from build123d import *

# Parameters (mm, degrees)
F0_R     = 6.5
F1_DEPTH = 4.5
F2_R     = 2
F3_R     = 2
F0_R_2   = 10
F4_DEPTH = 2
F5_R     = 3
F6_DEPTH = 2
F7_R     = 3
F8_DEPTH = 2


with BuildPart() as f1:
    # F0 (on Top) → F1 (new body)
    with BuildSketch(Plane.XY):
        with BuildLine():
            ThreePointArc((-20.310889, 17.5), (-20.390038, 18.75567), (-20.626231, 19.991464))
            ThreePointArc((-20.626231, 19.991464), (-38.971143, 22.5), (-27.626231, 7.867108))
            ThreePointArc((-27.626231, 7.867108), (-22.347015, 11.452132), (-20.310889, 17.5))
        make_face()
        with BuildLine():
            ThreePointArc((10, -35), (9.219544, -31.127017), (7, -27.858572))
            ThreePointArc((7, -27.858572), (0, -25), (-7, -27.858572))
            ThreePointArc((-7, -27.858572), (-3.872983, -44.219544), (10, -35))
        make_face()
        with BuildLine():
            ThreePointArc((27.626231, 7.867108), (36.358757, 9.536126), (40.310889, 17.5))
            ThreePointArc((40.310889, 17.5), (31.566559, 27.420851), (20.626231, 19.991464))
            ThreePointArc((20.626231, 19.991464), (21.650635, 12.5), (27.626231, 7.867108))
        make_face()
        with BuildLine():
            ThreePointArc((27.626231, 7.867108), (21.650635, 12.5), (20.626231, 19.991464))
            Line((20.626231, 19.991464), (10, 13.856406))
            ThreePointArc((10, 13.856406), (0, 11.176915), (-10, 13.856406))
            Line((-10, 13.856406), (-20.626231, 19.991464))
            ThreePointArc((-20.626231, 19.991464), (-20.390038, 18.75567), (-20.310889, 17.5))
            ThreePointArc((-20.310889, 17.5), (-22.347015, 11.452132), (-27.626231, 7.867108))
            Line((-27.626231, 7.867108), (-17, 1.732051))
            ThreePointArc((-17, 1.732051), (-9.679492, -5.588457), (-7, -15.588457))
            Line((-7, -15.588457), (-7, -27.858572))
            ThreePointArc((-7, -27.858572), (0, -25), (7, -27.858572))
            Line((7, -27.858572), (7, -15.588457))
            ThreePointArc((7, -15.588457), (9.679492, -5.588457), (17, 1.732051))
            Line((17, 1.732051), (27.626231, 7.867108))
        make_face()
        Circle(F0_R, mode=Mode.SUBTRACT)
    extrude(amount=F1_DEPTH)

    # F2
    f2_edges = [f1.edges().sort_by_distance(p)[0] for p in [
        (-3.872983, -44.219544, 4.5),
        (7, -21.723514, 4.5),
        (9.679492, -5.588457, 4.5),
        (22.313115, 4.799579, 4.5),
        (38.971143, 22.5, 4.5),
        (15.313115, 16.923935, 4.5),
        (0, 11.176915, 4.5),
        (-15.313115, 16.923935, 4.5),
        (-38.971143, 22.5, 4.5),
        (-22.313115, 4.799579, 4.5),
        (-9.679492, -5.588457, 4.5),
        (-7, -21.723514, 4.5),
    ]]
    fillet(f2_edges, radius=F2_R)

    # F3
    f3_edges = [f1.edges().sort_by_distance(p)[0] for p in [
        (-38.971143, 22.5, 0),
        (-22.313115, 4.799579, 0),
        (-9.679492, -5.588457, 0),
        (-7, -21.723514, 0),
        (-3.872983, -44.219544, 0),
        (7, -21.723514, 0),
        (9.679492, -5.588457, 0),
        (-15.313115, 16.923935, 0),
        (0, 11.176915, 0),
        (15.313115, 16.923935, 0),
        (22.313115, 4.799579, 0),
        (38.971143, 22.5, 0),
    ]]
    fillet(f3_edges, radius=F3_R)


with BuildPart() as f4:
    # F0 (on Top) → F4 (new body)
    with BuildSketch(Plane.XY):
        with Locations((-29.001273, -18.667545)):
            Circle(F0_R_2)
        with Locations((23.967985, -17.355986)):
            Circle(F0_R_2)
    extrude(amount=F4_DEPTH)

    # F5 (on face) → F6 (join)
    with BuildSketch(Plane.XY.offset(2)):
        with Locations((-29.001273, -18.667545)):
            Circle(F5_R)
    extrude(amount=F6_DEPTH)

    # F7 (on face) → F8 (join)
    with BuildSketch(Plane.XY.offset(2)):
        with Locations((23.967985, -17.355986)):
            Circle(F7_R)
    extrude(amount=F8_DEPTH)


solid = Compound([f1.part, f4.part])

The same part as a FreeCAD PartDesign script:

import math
import FreeCAD as App
import Part
import Sketcher

V = App.Vector
Q = App.Units.Quantity


def edges_at(feature, points):
    """Names of the edges that pass closest to the given points."""
    edges = feature.Shape.Edges
    near = lambda p: min(range(len(edges)), key=lambda i: edges[i].distToShape(Part.Vertex(*p))[0])
    return sorted({f"Edge{near(p) + 1}" for p in points})

doc = App.newDocument("Part")
body = doc.addObject("PartDesign::Body", "Body")

sketch1 = body.newObject("Sketcher::SketchObject", "Sketch")
sketch1.AttachmentSupport = (doc.getObject("XY_Plane"), [""])
sketch1.MapMode = "FlatFace"
sketch1.addGeometry([
    Part.ArcOfCircle(Part.Circle(V(-30, 17, 0), V(0, 0, 1), 10), math.radians(14), math.radians(286)),
    Part.LineSegment(V(-28, 8, 0), V(-17, 2, 0)),
    Part.ArcOfCircle(Part.Circle(V(-27, -16, 0), V(0, 0, 1), 20), math.radians(0), math.radians(60)),
    Part.LineSegment(V(-7, -16, 0), V(-7, -28, 0)),
    Part.ArcOfCircle(Part.Circle(V(0, -35, 0), V(0, 0, 1), 10), math.radians(134), math.radians(360)),
    Part.ArcOfCircle(Part.Circle(V(0, -35, 0), V(0, 0, 1), 10), math.radians(0), math.radians(46)),
    Part.LineSegment(V(7, -28, 0), V(7, -16, 0)),
    Part.ArcOfCircle(Part.Circle(V(27, -16, 0), V(0, 0, 1), 20), math.radians(120), math.radians(180)),
    Part.LineSegment(V(17, 2, 0), V(28, 8, 0)),
    Part.ArcOfCircle(Part.Circle(V(30, 18, 0), V(0, 0, 1), 10), math.radians(-106), math.radians(0)),
    Part.ArcOfCircle(Part.Circle(V(30, 17, 0), V(0, 0, 1), 10), math.radians(0), math.radians(166)),
    Part.LineSegment(V(21, 20, 0), V(10, 14, 0)),
    Part.ArcOfCircle(Part.Circle(V(0, 31, 0), V(0, 0, 1), 20), math.radians(-120), math.radians(-60)),
    Part.LineSegment(V(-10, 14, 0), V(-21, 20, 0)),
    Part.Circle(V(0, 0, 0), V(0, 0, 1), 6),
], False)
sketch1.addConstraint([
    Sketcher.Constraint("Coincident", 0, 2, 1, 1),
    Sketcher.Constraint("Tangent", 1, 2, 2, 2),
    Sketcher.Constraint("Tangent", 2, 1, 3, 1),
    Sketcher.Constraint("Coincident", 3, 2, 4, 1),
    Sketcher.Constraint("Tangent", 4, 2, 5, 1),
    Sketcher.Constraint("Coincident", 5, 2, 6, 1),
    Sketcher.Constraint("Tangent", 6, 2, 7, 2),
    Sketcher.Constraint("Tangent", 7, 1, 8, 1),
    Sketcher.Constraint("Coincident", 8, 2, 9, 1),
    Sketcher.Constraint("Tangent", 9, 2, 10, 1),
    Sketcher.Constraint("Coincident", 10, 2, 11, 1),
    Sketcher.Constraint("Tangent", 11, 2, 12, 2),
    Sketcher.Constraint("Tangent", 12, 1, 13, 1),
    Sketcher.Constraint("Coincident", 13, 2, 0, 1),
    Sketcher.Constraint("Vertical", 3),
    Sketcher.Constraint("Vertical", 6),
    Sketcher.Constraint("Coincident", 14, 3, -1, 1),
    Sketcher.Constraint("Equal", 0, 4),
    Sketcher.Constraint("Equal", 2, 7),
    Sketcher.Constraint("Equal", 4, 9),
    Sketcher.Constraint("Equal", 9, 10),
    Sketcher.Constraint("Symmetric", 2, 3, 7, 3, -2),
    Sketcher.Constraint("Symmetric", 0, 3, 9, 3, -2),
    Sketcher.Constraint("Symmetric", 11, 2, 12, 1, -2),
    Sketcher.Constraint("PointOnObject", 4, 3, -2),
    Sketcher.Constraint("Parallel", 8, 11),
    Sketcher.Constraint("Parallel", 1, 13),
    Sketcher.Constraint("Horizontal", 3, 2, 5, 2),
    Sketcher.Constraint("Horizontal", 10, 3, 9, 2),
    Sketcher.Constraint("Vertical", 4, 2, 11, 2),
    Sketcher.Constraint("Equal", 8, 11),
    Sketcher.Constraint("Diameter", 14, 13.0),
    Sketcher.Constraint("Radius", 0, 10.0),
    Sketcher.Constraint("Radius", 2, 20.0),
    Sketcher.Constraint("Angle", 1, Q("-29.999999 deg")),
    Sketcher.Constraint("DistanceX", 2, 3, -1, 1, 27.0),
    Sketcher.Constraint("DistanceY", 4, 3, -1, 1, 35.0),
    Sketcher.Constraint("DistanceY", 4, 2, -1, 1, 35.0),
    Sketcher.Constraint("DistanceY", -1, 1, 0, 3, 17.5),
    Sketcher.Constraint("DistanceY", 0, 2, 12, 1, 5.989298),
    Sketcher.Constraint("DistanceY", 3, 2, 3, 1, 12.270115),
])
pad1 = body.newObject("PartDesign::Pad", "Pad")
pad1.Profile = sketch1
pad1.Length = 4.5
doc.recompute()

fillet = body.newObject("PartDesign::Fillet", "Fillet")
fillet.Base = (pad1, edges_at(pad1, [
    (-3.873, -44.22, 4.5),
    (7, -21.724, 4.5),
    (9.679, -5.588, 4.5),
    (22.313, 4.8, 4.5),
    (31.567, 27.421, 4.5),
    (15.313, 16.924, 4.5),
    (0, 11.177, 4.5),
    (-15.313, 16.924, 4.5),
    (-38.971, 22.5, 4.5),
    (-22.313, 4.8, 4.5),
    (-9.679, -5.588, 4.5),
    (-7, -21.724, 4.5),
]))
fillet.Radius = 2
doc.recompute()

fillet2 = body.newObject("PartDesign::Fillet", "Fillet001")
fillet2.Base = (fillet, edges_at(fillet, [
    (-38.971, 22.5, 0),
    (-22.313, 4.8, 0),
    (-9.679, -5.588, 0),
    (-7, -21.724, 0),
    (-3.873, -44.22, 0),
    (7, -21.724, 0),
    (9.679, -5.588, 0),
    (-15.313, 16.924, 0),
    (0, 11.177, 0),
    (15.313, 16.924, 0),
    (22.313, 4.8, 0),
    (31.567, 27.421, 0),
]))
fillet2.Radius = 2
body2 = doc.addObject("PartDesign::Body", "Body001")
body2.AllowCompound = True

sketch2 = body2.newObject("Sketcher::SketchObject", "Sketch001")
sketch2.AttachmentSupport = (doc.getObject("XY_Plane001"), [""])
sketch2.MapMode = "FlatFace"
sketch2.addGeometry([
    Part.Circle(V(-29, -19, 0), V(0, 0, 1), 10),
    Part.Circle(V(24, -17, 0), V(0, 0, 1), 10),
], False)
sketch2.addConstraint([
    Sketcher.Constraint("Equal", 0, 1),
    Sketcher.Constraint("Diameter", 0, 20.0),
    Sketcher.Constraint("DistanceY", 0, 3, 1, 3, 1.311559),
    Sketcher.Constraint("DistanceX", 0, 3, -1, 1, 29.001273),
    Sketcher.Constraint("DistanceY", 0, 3, -1, 1, 18.667545),
    Sketcher.Constraint("DistanceX", -1, 1, 1, 3, 23.967985),
])
pad2 = body2.newObject("PartDesign::Pad", "Pad001")
pad2.Profile = sketch2
pad2.Length = 2

sketch3 = body2.newObject("Sketcher::SketchObject", "Sketch002")
sketch3.AttachmentSupport = (doc.getObject("XY_Plane001"), [""])
sketch3.MapMode = "FlatFace"
sketch3.AttachmentOffset = App.Placement(V(0, 0, 2), App.Rotation())
sketch3.addGeometry(Part.Circle(V(-29, -18.7, 0), V(0, 0, 1), 3), False)
sketch3.addConstraint([
    Sketcher.Constraint("Diameter", 0, 6.0),
    Sketcher.Constraint("DistanceX", 0, 3, -1, 1, 29.001273),
    Sketcher.Constraint("DistanceY", 0, 3, -1, 1, 18.667545),
])
pad3 = body2.newObject("PartDesign::Pad", "Pad002")
pad3.Profile = sketch3
pad3.Length = 2

sketch4 = body2.newObject("Sketcher::SketchObject", "Sketch003")
sketch4.AttachmentSupport = (doc.getObject("XY_Plane001"), [""])
sketch4.MapMode = "FlatFace"
sketch4.AttachmentOffset = App.Placement(V(0, 0, 2), App.Rotation())
sketch4.addGeometry(Part.Circle(V(24, -17.4, 0), V(0, 0, 1), 3), False)
sketch4.addConstraint([
    Sketcher.Constraint("Diameter", 0, 6.0),
    Sketcher.Constraint("DistanceX", -1, 1, 0, 3, 23.967985),
    Sketcher.Constraint("DistanceY", 0, 3, -1, 1, 17.355986),
])
pad4 = body2.newObject("PartDesign::Pad", "Pad003")
pad4.Profile = sketch4
pad4.Length = 2

doc.recompute()
